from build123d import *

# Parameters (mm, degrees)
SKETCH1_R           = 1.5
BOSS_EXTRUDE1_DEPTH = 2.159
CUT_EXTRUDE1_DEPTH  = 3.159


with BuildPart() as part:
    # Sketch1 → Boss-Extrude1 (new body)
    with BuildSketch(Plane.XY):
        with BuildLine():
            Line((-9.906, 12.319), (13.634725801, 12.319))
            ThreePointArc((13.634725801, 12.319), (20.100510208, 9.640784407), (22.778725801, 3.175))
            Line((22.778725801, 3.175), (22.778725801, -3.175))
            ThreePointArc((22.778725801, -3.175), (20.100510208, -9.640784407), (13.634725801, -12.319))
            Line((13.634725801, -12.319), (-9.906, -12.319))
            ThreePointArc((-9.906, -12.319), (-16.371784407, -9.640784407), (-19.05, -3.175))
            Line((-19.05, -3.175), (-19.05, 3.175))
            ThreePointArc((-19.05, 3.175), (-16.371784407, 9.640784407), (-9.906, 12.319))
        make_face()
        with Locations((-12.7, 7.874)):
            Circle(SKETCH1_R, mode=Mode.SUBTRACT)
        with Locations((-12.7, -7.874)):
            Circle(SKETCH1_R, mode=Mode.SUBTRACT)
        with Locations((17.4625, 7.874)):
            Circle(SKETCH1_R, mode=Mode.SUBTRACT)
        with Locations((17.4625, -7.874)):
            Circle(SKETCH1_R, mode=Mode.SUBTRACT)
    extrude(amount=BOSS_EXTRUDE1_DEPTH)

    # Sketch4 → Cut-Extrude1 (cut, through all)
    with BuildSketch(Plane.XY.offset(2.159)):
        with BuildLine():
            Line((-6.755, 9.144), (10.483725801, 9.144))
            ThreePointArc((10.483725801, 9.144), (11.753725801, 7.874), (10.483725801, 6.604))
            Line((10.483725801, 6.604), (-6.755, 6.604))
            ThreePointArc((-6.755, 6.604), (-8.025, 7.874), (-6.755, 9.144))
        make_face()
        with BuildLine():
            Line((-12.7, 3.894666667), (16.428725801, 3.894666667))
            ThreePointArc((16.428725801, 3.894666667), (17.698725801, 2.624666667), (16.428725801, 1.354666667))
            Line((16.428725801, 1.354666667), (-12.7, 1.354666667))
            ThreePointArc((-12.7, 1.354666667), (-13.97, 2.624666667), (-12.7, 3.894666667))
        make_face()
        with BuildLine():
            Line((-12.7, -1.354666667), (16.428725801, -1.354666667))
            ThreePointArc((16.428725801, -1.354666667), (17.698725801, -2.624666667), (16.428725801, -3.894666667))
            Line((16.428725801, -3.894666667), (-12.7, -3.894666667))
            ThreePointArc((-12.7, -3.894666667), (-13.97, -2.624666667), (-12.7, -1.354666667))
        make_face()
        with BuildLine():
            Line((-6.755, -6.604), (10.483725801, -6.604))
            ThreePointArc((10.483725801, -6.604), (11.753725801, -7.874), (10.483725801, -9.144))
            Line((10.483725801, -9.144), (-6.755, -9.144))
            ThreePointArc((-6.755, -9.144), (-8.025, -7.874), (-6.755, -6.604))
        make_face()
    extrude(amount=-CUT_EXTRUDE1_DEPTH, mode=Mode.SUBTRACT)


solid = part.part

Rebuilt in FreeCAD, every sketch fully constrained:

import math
import FreeCAD as App
import Part
import Sketcher
Q = App.Units.Quantity

doc = App.newDocument("Part")
params = doc.addObject("Spreadsheet::Sheet", "Params")
for row, (alias, value) in enumerate([
    ("sketch1_radius", "0.36 in"),
    ("sketch1_height", "0.25 in"),
    ("pad1_length", "0.085 in"),
    ("sketch2_radius", "0.05 in"),
], start=1):
    params.set(f"A{row}", alias)
    params.set(f"B{row}", "=" + value)
    params.setAlias(f"B{row}", alias)

body = doc.addObject("PartDesign::Body", "Body")

# Sketch on XY plane
sketch1 = doc.addObject("Sketcher::SketchObject", "Sketch")
body.addObject(sketch1)
sketch1.AttachmentSupport = (doc.XY_Plane, [""])
sketch1.MapMode = "FlatFace"
sketch1.addGeometry([
    Part.LineSegment(App.Vector(13.6, 12.3, 0), App.Vector(-9.9, 12.3, 0)),  # 0
    Part.ArcOfCircle(Part.Circle(App.Vector(-9.9, 3.2, 0), App.Vector(0, 0, 1), 9.1), math.radians(90), math.radians(180)),  # 1
    Part.LineSegment(App.Vector(-19.1, 3.2, 0), App.Vector(-19.1, -3.2, 0)),  # 2
    Part.ArcOfCircle(Part.Circle(App.Vector(-9.9, -3.2, 0), App.Vector(0, 0, 1), 9.1), math.radians(-180), math.radians(-90)),  # 3
    Part.LineSegment(App.Vector(-9.9, -12.3, 0), App.Vector(13.6, -12.3, 0)),  # 4
    Part.ArcOfCircle(Part.Circle(App.Vector(13.6, -3.2, 0), App.Vector(0, 0, 1), 9.1), math.radians(-90), math.radians(0)),  # 5
    Part.LineSegment(App.Vector(22.8, -3.2, 0), App.Vector(22.8, 3.2, 0)),  # 6
    Part.ArcOfCircle(Part.Circle(App.Vector(13.6, 3.2, 0), App.Vector(0, 0, 1), 9.1), math.radians(0), math.radians(90)),  # 7
    Part.Circle(App.Vector(17.5, -7.9, 0), App.Vector(0, 0, 1), 1.5),  # 8
    Part.Circle(App.Vector(-12.7, -7.9, 0), App.Vector(0, 0, 1), 1.5),  # 9
    Part.Circle(App.Vector(17.5, 7.9, 0), App.Vector(0, 0, 1), 1.5),  # 10
    Part.Circle(App.Vector(-12.7, 7.9, 0), App.Vector(0, 0, 1), 1.5),  # 11
], False)
sketch1.addConstraint([
    Sketcher.Constraint("Tangent", 0, 2, 1, 1),
    Sketcher.Constraint("Tangent", 1, 2, 2, 1),
    Sketcher.Constraint("Tangent", 2, 2, 3, 1),
    Sketcher.Constraint("Tangent", 3, 2, 4, 1),
    Sketcher.Constraint("Tangent", 4, 2, 5, 1),
    Sketcher.Constraint("Tangent", 5, 2, 6, 1),
    Sketcher.Constraint("Tangent", 6, 2, 7, 1),
    Sketcher.Constraint("Tangent", 7, 2, 0, 1),
    Sketcher.Constraint("Horizontal", 0),
    Sketcher.Constraint("Vertical", 2),
    Sketcher.Constraint("Horizontal", 4),
    Sketcher.Constraint("Vertical", 6),
    Sketcher.Constraint("Equal", 1, 3),
    Sketcher.Constraint("Equal", 3, 5),
    Sketcher.Constraint("Equal", 5, 7),
    Sketcher.Constraint("Equal", 8, 9),
    Sketcher.Constraint("Equal", 9, 10),
    Sketcher.Constraint("Equal", 10, 11),
    Sketcher.Constraint("Symmetric", 8, 3, 10, 3, -1),
    Sketcher.Constraint("Symmetric", 9, 3, 11, 3, -1),
    Sketcher.Constraint("Horizontal", 8, 3, 9, 3),
    Sketcher.Constraint("Radius", 1, Q("0.36 in")),
    Sketcher.Constraint("DistanceY", 2, 2, 2, 1, Q("0.25 in")),
    Sketcher.Constraint("DistanceX", 9, 3, -1, 1, Q("0.5 in")),
    Sketcher.Constraint("Diameter", 8, 3.0),
    Sketcher.Constraint("DistanceX", 1, 3, -1, 1, Q("0.39 in")),
    Sketcher.Constraint("DistanceY", 8, 3, -1, 1, Q("0.31 in")),
    Sketcher.Constraint("DistanceY", -1, 1, 1, 3, Q("0.125 in")),
    Sketcher.Constraint("DistanceX", -1, 1, 8, 3, Q("0.6875 in")),
    Sketcher.Constraint("DistanceX", 0, 2, 0, 1, 23.540726),
])
sketch1.setExpression("Constraints[21]", "Params.sketch1_radius")
sketch1.setExpression("Constraints[22]", "Params.sketch1_height")
pad1 = doc.addObject("PartDesign::Pad", "Pad")
body.addObject(pad1)
pad1.Profile = sketch1
pad1.setExpression("Length", "Params.pad1_length")

# Sketch on XY plane
sketch2 = doc.addObject("Sketcher::SketchObject", "Sketch001")
body.addObject(sketch2)
sketch2.AttachmentSupport = (doc.XY_Plane, [""])
sketch2.MapMode = "FlatFace"
sketch2.AttachmentOffset = App.Placement(App.Vector(0, 0, 0.085 * 25.4), App.Rotation())
sketch2.addGeometry([
    Part.LineSegment(App.Vector(10.5, 9.1, 0), App.Vector(-6.8, 9.1, 0)),  # 0
    Part.ArcOfCircle(Part.Circle(App.Vector(-6.8, 7.9, 0), App.Vector(0, 0, 1), 1.3), math.radians(90), math.radians(270)),  # 1
    Part.LineSegment(App.Vector(-6.8, 6.6, 0), App.Vector(10.5, 6.6, 0)),  # 2
    Part.ArcOfCircle(Part.Circle(App.Vector(10.5, 7.9, 0), App.Vector(0, 0, 1), 1.3), math.radians(-90), math.radians(90)),  # 3
    Part.LineSegment(App.Vector(16.4, 3.9, 0), App.Vector(-12.7, 3.9, 0)),  # 4
    Part.ArcOfCircle(Part.Circle(App.Vector(-12.7, 2.6, 0), App.Vector(0, 0, 1), 1.3), math.radians(90), math.radians(270)),  # 5
    Part.LineSegment(App.Vector(-12.7, 1.4, 0), App.Vector(16.4, 1.4, 0)),  # 6
    Part.ArcOfCircle(Part.Circle(App.Vector(16.4, 2.6, 0), App.Vector(0, 0, 1), 1.3), math.radians(-90), math.radians(90)),  # 7
    Part.LineSegment(App.Vector(16.4, -1.4, 0), App.Vector(-12.7, -1.4, 0)),  # 8
    Part.ArcOfCircle(Part.Circle(App.Vector(-12.7, -2.6, 0), App.Vector(0, 0, 1), 1.3), math.radians(90), math.radians(270)),  # 9
    Part.LineSegment(App.Vector(-12.7, -3.9, 0), App.Vector(16.4, -3.9, 0)),  # 10
    Part.ArcOfCircle(Part.Circle(App.Vector(16.4, -2.6, 0), App.Vector(0, 0, 1), 1.3), math.radians(-90), math.radians(90)),  # 11
    Part.LineSegment(App.Vector(10.5, -6.6, 0), App.Vector(-6.8, -6.6, 0)),  # 12
    Part.ArcOfCircle(Part.Circle(App.Vector(-6.8, -7.9, 0), App.Vector(0, 0, 1), 1.3), math.radians(90), math.radians(270)),  # 13
    Part.LineSegment(App.Vector(-6.8, -9.1, 0), App.Vector(10.5, -9.1, 0)),  # 14
    Part.ArcOfCircle(Part.Circle(App.Vector(10.5, -7.9, 0), App.Vector(0, 0, 1), 1.3), math.radians(-90), math.radians(90)),  # 15
], False)
sketch2.addConstraint([
    Sketcher.Constraint("Tangent", 0, 2, 1, 1),
    Sketcher.Constraint("Tangent", 1, 2, 2, 1),
    Sketcher.Constraint("Tangent", 2, 2, 3, 1),
    Sketcher.Constraint("Tangent", 3, 2, 0, 1),
    Sketcher.Constraint("Tangent", 4, 2, 5, 1),
    Sketcher.Constraint("Tangent", 5, 2, 6, 1),
    Sketcher.Constraint("Tangent", 6, 2, 7, 1),
    Sketcher.Constraint("Tangent", 7, 2, 4, 1),
    Sketcher.Constraint("Tangent", 8, 2, 9, 1),
    Sketcher.Constraint("Tangent", 9, 2, 10, 1),
    Sketcher.Constraint("Tangent", 10, 2, 11, 1),
    Sketcher.Constraint("Tangent", 11, 2, 8, 1),
    Sketcher.Constraint("Tangent", 12, 2, 13, 1),
    Sketcher.Constraint("Tangent", 13, 2, 14, 1),
    Sketcher.Constraint("Tangent", 14, 2, 15, 1),
    Sketcher.Constraint("Tangent", 15, 2, 12, 1),
    Sketcher.Constraint("Horizontal", 0),
    Sketcher.Constraint("Horizontal", 2),
    Sketcher.Constraint("Horizontal", 4),
    Sketcher.Constraint("Horizontal", 6),
    Sketcher.Constraint("Horizontal", 8),
    Sketcher.Constraint("Horizontal", 10),
    Sketcher.Constraint("Horizontal", 12),
    Sketcher.Constraint("Horizontal", 14),
    Sketcher.Constraint("Equal", 3, 5),
    Sketcher.Constraint("Equal", 7, 9),
    Sketcher.Constraint("Equal", 11, 13),
    Sketcher.Constraint("Symmetric", 5, 3, 9, 3, -1),
    Sketcher.Constraint("Symmetric", 1, 3, 13, 3, -1),
    Sketcher.Constraint("Vertical", 7, 3, 11, 3),
    Sketcher.Constraint("Vertical", 3, 3, 15, 3),
    Sketcher.Constraint("Radius", 1, Q("0.05 in")),
    Sketcher.Constraint("DistanceX", 5, 3, -1, 1, Q("0.5 in")),
    Sketcher.Constraint("DistanceY", -1, 1, 1, 3, Q("0.31 in")),
    Sketcher.Constraint("DistanceX", 1, 3, -1, 1, 6.755),
    Sketcher.Constraint("DistanceX", 3, 3, 7, 3, 5.945),
    Sketcher.Constraint("DistanceX", 0, 2, 0, 1, 17.238726),
    Sketcher.Constraint("DistanceY", -1, 1, 5, 3, 2.624667),
])
sketch2.setExpression("Constraints[31]", "Params.sketch2_radius")
pocket1 = doc.addObject("PartDesign::Pocket", "Pocket")
body.addObject(pocket1)
pocket1.Profile = sketch2
pocket1.Type = "ThroughAll"

doc.recompute()
